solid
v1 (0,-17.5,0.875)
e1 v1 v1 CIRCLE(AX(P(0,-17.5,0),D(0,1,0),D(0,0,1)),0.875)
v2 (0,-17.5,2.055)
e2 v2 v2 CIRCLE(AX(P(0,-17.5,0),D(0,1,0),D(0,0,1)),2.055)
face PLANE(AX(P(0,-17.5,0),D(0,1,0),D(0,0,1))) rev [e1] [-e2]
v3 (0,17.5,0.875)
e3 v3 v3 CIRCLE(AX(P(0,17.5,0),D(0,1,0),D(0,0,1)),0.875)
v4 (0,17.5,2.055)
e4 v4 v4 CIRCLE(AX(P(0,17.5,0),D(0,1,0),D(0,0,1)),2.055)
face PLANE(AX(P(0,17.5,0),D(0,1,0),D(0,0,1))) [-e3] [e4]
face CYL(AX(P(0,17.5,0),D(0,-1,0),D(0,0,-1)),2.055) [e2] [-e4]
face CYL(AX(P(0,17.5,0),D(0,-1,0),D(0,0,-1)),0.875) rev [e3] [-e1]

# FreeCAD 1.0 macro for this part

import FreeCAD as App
import Part
import Sketcher
from FreeCAD import Vector

doc = App.newDocument("Part")
body = doc.addObject("PartDesign::Body", "Body")

# Sketch on XZ plane
sketch1 = body.newObject("Sketcher::SketchObject", "Sketch")
sketch1.AttachmentSupport = (doc.getObject("XZ_Plane"), [""])
sketch1.MapMode = "FlatFace"
sketch1.addGeometry([
    Part.Circle(Vector(0, 0, 0), Vector(0, 0, 1), 2.1),
    Part.Circle(Vector(0, 0, 0), Vector(0, 0, 1), 0.9),
], False)
sketch1.addConstraint([
    Sketcher.Constraint("Coincident", 0, 3, -1, 1),
    Sketcher.Constraint("Coincident", 1, 3, -1, 1),
    Sketcher.Constraint("Diameter", 0, 4.11),
    Sketcher.Constraint("Diameter", 1, 1.75),
])
pad1 = body.newObject("PartDesign::Pad", "Pad")
pad1.Profile = sketch1
pad1.Length = 35
pad1.Midplane = True

doc.recompute()
